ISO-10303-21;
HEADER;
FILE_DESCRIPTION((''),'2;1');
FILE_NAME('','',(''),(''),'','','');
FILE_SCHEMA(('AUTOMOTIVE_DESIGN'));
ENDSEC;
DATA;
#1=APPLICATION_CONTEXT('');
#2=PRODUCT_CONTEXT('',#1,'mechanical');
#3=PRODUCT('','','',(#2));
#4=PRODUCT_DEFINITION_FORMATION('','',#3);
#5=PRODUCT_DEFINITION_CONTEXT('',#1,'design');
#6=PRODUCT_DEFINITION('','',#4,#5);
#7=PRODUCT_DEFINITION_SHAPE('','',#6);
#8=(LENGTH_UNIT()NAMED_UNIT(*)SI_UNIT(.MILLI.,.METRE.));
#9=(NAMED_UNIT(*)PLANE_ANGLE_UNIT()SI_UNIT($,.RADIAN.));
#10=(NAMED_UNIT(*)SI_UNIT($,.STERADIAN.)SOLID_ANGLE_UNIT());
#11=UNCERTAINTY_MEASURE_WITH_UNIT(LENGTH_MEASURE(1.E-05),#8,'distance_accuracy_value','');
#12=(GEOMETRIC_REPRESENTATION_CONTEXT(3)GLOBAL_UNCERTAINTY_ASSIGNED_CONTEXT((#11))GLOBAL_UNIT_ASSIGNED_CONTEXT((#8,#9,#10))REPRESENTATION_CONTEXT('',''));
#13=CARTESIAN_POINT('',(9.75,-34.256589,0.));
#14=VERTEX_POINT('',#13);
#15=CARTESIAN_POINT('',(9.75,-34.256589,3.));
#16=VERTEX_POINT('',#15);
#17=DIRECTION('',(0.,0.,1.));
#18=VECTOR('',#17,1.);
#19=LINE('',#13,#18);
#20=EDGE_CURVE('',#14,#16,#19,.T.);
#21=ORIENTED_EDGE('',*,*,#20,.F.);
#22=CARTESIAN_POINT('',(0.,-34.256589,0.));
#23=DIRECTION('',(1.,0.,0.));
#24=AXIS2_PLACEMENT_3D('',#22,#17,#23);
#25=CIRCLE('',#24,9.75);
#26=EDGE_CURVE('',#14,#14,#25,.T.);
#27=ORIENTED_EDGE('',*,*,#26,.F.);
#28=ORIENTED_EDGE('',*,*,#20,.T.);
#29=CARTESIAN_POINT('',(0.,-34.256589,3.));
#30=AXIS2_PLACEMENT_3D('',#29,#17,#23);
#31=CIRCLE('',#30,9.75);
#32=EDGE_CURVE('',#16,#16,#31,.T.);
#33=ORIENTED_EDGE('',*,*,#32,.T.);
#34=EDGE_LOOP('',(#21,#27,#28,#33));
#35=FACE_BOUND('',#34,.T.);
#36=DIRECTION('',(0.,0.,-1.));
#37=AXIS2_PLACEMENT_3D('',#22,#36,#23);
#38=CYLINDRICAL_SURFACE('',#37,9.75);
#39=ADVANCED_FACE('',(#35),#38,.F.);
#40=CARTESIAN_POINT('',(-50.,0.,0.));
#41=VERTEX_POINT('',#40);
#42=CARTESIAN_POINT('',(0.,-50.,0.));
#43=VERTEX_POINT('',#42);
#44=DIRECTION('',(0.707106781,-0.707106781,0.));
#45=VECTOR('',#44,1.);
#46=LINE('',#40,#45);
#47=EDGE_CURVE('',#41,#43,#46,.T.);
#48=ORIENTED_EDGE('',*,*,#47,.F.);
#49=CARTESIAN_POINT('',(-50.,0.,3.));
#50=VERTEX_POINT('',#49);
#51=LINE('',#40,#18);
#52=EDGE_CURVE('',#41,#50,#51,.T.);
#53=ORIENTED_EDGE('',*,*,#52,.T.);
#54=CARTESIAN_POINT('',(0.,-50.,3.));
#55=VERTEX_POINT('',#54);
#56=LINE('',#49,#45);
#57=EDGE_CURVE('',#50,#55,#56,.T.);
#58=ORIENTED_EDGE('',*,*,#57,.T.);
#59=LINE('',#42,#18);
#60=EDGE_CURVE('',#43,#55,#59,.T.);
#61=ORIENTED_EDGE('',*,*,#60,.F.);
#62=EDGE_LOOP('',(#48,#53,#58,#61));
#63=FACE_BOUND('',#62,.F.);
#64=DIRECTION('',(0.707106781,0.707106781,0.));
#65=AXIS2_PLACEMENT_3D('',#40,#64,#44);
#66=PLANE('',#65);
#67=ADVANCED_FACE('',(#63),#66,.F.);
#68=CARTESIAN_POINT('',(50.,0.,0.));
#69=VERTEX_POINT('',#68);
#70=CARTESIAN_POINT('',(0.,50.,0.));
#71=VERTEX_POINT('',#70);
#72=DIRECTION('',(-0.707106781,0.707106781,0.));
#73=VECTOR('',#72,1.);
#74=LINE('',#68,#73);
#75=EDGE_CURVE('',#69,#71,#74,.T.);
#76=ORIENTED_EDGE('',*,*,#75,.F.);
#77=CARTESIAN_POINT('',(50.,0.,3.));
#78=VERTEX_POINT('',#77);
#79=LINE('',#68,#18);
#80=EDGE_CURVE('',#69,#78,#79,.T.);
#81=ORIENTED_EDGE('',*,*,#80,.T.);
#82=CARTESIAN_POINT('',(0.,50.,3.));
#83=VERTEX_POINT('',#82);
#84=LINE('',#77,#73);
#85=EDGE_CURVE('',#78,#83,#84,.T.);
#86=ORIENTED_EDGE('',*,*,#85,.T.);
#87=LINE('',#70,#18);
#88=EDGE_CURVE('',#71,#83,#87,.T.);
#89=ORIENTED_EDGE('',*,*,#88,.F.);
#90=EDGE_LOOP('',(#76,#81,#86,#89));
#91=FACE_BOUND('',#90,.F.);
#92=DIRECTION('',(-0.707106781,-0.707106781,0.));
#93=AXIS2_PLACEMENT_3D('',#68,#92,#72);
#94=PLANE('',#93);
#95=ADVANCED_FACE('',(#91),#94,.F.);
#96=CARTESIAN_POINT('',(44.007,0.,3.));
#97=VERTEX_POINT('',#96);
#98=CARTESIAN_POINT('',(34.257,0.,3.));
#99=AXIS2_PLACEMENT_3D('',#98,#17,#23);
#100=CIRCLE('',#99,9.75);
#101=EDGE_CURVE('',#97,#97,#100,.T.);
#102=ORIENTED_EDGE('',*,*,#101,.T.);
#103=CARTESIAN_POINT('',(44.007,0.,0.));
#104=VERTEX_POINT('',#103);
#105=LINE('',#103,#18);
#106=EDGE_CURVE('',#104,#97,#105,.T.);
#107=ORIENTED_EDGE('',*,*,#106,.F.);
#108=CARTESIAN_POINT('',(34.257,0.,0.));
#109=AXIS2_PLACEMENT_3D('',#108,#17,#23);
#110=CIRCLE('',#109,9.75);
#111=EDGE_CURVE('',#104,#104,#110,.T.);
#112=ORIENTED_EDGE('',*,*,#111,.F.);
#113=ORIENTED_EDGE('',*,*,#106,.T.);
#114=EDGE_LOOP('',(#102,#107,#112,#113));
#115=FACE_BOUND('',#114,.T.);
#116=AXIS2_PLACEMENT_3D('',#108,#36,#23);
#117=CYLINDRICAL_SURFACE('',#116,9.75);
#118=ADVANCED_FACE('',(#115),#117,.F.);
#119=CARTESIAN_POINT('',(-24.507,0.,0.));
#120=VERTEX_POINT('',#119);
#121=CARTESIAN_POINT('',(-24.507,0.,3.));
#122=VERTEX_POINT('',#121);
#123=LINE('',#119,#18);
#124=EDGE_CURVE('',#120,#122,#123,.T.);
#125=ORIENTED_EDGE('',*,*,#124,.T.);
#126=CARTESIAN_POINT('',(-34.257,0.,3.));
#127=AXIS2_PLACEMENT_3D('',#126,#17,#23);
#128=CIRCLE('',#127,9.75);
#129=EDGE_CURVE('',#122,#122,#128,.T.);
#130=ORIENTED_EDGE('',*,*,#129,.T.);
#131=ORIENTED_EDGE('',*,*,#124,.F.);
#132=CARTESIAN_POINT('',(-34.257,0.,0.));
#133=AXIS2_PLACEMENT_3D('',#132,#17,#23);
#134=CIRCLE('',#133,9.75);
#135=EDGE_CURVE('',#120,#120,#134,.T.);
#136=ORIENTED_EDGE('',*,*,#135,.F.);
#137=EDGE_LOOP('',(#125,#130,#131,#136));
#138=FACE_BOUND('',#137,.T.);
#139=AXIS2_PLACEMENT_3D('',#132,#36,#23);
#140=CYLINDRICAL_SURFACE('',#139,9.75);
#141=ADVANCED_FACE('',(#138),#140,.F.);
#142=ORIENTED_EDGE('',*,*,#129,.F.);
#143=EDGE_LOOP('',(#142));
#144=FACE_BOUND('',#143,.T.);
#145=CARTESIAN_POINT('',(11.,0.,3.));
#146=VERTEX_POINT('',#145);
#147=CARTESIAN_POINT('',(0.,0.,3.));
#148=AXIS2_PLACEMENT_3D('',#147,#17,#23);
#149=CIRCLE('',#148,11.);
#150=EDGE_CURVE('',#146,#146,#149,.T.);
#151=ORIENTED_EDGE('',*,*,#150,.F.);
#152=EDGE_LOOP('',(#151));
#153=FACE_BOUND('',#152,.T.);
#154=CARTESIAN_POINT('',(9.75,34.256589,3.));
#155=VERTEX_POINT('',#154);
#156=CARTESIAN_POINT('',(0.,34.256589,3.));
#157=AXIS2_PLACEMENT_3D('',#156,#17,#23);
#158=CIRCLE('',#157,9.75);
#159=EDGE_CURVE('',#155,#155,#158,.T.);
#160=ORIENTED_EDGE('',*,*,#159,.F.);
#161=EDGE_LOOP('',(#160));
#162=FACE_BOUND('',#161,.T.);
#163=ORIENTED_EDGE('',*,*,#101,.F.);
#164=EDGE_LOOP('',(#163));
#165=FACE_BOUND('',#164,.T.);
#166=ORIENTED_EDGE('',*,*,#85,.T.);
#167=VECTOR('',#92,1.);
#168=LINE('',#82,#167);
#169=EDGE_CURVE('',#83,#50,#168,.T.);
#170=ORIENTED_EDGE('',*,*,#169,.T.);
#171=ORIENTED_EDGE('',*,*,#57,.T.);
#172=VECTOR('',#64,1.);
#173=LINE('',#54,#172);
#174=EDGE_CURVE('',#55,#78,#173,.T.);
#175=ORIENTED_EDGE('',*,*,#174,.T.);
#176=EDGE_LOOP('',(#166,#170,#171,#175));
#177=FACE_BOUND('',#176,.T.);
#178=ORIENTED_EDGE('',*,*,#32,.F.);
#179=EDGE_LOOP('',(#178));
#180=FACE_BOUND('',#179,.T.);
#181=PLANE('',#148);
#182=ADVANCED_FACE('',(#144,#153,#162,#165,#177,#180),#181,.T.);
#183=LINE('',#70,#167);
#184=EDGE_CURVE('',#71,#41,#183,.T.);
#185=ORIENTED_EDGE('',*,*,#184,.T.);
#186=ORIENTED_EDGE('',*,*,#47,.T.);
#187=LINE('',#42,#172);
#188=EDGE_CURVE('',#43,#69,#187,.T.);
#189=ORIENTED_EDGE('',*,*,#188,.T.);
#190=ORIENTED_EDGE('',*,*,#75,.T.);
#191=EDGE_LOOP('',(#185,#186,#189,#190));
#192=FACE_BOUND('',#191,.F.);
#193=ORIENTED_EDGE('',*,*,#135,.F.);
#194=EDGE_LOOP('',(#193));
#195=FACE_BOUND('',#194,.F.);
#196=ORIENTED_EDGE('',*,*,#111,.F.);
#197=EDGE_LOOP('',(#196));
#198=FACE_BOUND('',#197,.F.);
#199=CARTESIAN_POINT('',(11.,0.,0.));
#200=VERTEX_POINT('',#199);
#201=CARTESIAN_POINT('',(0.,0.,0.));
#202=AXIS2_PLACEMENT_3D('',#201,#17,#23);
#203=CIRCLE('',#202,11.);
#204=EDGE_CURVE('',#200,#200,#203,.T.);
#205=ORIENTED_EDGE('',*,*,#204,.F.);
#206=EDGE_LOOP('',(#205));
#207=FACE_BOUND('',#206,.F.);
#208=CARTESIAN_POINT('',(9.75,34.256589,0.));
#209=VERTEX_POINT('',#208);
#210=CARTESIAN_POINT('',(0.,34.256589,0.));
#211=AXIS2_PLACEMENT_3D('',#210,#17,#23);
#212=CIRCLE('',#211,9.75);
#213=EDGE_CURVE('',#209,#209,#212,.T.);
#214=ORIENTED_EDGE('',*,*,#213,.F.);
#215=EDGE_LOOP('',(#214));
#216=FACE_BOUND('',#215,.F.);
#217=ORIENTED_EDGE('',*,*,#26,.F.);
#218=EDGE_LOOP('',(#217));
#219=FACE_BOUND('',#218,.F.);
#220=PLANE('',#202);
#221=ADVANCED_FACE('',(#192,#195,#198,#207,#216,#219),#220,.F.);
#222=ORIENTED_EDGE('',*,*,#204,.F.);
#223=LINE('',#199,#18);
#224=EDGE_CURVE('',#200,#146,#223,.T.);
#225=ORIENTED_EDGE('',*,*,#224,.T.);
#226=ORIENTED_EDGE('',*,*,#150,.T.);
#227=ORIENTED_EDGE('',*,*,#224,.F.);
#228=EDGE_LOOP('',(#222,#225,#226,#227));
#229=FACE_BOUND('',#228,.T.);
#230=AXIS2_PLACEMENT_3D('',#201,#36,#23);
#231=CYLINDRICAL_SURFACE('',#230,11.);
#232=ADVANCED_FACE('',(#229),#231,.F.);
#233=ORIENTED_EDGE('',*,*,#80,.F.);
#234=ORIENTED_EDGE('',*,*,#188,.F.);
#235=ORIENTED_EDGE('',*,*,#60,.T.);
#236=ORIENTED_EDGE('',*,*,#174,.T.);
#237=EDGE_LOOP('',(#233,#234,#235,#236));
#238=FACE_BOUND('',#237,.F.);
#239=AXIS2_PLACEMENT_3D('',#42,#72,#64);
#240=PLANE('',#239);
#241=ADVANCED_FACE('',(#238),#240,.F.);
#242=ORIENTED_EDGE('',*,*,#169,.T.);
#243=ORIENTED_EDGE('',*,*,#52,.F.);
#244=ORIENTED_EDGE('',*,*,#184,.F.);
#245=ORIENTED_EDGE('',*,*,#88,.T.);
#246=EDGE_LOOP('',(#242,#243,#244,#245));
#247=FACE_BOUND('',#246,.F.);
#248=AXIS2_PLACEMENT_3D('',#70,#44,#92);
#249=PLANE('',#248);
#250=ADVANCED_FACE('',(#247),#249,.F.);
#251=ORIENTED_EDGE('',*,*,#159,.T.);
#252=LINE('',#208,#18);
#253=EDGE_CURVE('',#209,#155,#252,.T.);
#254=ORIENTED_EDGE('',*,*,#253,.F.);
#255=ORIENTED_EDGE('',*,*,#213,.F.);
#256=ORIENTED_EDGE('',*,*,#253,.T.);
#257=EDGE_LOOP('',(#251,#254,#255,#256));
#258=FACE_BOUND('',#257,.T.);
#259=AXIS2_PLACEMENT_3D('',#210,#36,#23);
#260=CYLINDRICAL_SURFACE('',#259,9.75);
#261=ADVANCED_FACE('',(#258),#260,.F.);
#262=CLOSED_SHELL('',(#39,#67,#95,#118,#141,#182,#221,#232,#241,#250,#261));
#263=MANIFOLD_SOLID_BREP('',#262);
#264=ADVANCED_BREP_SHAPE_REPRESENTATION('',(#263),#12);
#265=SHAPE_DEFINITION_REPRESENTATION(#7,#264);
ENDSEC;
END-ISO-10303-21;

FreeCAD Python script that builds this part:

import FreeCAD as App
import Part
import Sketcher

V = App.Vector


def add_polygon(sketch, points):
    """Adds a closed chain of lines whose ends are joined by coincident constraints."""
    first, n = sketch.GeometryCount, len(points)
    for a, b in zip(points, points[1:] + points[:1]):
        sketch.addGeometry(Part.LineSegment(App.Vector(*a, 0), App.Vector(*b, 0)), False)
    for i in range(n):
        sketch.addConstraint(Sketcher.Constraint("Coincident", first + i, 2, first + (i + 1) % n, 1))

doc = App.newDocument("Part")
body = doc.addObject("PartDesign::Body", "Body")

sketch1 = body.newObject("Sketcher::SketchObject", "Sketch")
sketch1.AttachmentSupport = (doc.getObject("XY_Plane"), [""])
sketch1.MapMode = "FlatFace"
add_polygon(sketch1, [(50, 0), (0, 50), (-50, 0), (0, -50)])
sketch1.addGeometry(Part.Circle(V(0, -34, 0), V(0, 0, 1), 10), False)
sketch1.addGeometry(Part.Circle(V(-34, 0, 0), V(0, 0, 1), 10), False)
sketch1.addGeometry(Part.Circle(V(0, 0, 0), V(0, 0, 1), 11), False)
sketch1.addGeometry(Part.Circle(V(34, 0, 0), V(0, 0, 1), 10), False)
sketch1.addGeometry(Part.Circle(V(0, 34, 0), V(0, 0, 1), 10), False)
sketch1.addConstraint([
    Sketcher.Constraint("Coincident", 6, 3, -1, 1),
    Sketcher.Constraint("Equal", 4, 5),
    Sketcher.Constraint("Equal", 5, 7),
    Sketcher.Constraint("Equal", 7, 8),
    Sketcher.Constraint("Symmetric", 5, 3, 7, 3, -1, 1),
    Sketcher.Constraint("Symmetric", 4, 3, 8, 3, -1, 1),
    Sketcher.Constraint("Symmetric", 0, 2, 2, 2, -1, 1),
    Sketcher.Constraint("Symmetric", 1, 2, 3, 2, -1, 1),
    Sketcher.Constraint("PointOnObject", 4, 3, -2),
    Sketcher.Constraint("PointOnObject", 5, 3, -1),
    Sketcher.Constraint("PointOnObject", 0, 2, -2),
    Sketcher.Constraint("PointOnObject", 1, 2, -1),
    Sketcher.Constraint("Perpendicular", 0, 1),
    Sketcher.Constraint("Diameter", 6, 22.0),
    Sketcher.Constraint("Diameter", 4, 19.5),
    Sketcher.Constraint("DistanceY", -1, 1, 0, 2, 50.0),
    Sketcher.Constraint("DistanceX", 5, 3, -1, 1, 34.257),
    Sketcher.Constraint("DistanceY", 4, 3, -1, 1, 34.256589),
])
pad1 = body.newObject("PartDesign::Pad", "Pad")
pad1.Profile = sketch1
pad1.Length = 3

doc.recompute()
